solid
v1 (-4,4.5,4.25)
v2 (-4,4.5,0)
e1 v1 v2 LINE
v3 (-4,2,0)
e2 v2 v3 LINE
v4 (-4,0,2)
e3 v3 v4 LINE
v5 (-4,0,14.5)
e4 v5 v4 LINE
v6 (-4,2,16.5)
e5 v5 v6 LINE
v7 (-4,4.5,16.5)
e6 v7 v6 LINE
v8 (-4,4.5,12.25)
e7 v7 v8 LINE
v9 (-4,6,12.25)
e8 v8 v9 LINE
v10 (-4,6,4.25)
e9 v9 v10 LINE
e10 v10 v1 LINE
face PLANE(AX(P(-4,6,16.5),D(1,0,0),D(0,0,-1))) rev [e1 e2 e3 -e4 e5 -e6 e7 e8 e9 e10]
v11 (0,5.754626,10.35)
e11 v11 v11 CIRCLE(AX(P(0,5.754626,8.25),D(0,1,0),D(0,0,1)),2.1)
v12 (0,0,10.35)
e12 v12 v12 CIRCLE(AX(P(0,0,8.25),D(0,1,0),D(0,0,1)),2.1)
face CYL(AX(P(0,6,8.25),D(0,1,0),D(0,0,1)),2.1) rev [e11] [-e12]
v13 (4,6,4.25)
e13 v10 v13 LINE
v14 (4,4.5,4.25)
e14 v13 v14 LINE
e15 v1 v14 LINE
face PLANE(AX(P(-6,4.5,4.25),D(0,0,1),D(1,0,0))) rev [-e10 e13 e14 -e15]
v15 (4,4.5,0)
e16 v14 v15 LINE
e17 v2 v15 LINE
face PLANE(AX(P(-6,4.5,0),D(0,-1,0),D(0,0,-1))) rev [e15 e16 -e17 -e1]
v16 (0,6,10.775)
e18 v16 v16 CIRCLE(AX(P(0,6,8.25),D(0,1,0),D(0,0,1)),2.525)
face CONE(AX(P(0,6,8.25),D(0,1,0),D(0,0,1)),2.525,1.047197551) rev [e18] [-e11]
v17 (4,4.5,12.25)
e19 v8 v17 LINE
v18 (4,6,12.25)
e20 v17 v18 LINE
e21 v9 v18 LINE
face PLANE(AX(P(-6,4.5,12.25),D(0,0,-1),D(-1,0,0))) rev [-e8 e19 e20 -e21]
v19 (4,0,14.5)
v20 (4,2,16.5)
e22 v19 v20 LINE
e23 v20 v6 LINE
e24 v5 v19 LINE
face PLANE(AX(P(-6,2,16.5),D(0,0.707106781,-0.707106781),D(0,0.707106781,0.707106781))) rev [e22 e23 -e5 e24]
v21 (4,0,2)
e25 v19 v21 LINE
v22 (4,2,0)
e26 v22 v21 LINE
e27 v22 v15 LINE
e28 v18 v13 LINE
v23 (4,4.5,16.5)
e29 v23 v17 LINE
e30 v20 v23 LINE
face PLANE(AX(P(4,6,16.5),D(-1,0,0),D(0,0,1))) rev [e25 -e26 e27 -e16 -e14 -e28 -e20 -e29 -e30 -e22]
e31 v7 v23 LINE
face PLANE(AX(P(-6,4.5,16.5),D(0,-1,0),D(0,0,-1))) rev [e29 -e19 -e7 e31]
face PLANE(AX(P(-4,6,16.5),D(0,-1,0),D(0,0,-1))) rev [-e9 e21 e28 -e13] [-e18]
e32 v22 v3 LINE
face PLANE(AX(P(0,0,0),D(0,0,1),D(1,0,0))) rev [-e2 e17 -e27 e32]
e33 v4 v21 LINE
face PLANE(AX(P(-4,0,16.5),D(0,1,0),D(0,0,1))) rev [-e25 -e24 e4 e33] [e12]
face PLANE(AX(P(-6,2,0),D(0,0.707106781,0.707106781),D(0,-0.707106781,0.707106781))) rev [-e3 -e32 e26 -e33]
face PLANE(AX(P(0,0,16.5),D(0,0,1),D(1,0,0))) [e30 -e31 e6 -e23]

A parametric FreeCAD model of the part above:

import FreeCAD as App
import Part
import Sketcher

V = App.Vector


def add_polygon(sketch, points):
    """Adds a closed chain of lines whose ends are joined by coincident constraints."""
    first, n = sketch.GeometryCount, len(points)
    for a, b in zip(points, points[1:] + points[:1]):
        sketch.addGeometry(Part.LineSegment(App.Vector(*a, 0), App.Vector(*b, 0)), False)
    for i in range(n):
        sketch.addConstraint(Sketcher.Constraint("Coincident", first + i, 2, first + (i + 1) % n, 1))

doc = App.newDocument("Part")
body = doc.addObject("PartDesign::Body", "Body")

# Sketch on XY plane
sketch1 = body.newObject("Sketcher::SketchObject", "Sketch")
sketch1.AttachmentSupport = (doc.getObject("XY_Plane"), [""])
sketch1.MapMode = "FlatFace"
add_polygon(sketch1, [(-4, 6), (-4, 0), (4, 0), (4, 6)])  # lines 0-3
sketch1.addConstraint([
    Sketcher.Constraint("Vertical", 0),
    Sketcher.Constraint("Horizontal", 1),
    Sketcher.Constraint("Vertical", 2),
    Sketcher.Constraint("Horizontal", 3),
    Sketcher.Constraint("Symmetric", 0, 2, 1, 2, -1, 1),
    Sketcher.Constraint("DistanceX", 1, 1, 1, 2, 8.0),
    Sketcher.Constraint("DistanceY", 0, 2, 0, 1, 6.0),
])
pad1 = body.newObject("PartDesign::Pad", "Pad")
pad1.Profile = sketch1
pad1.Length = 16.5

# Sketch on XZ plane
sketch2 = body.newObject("Sketcher::SketchObject", "Sketch001")
sketch2.AttachmentSupport = (doc.getObject("XZ_Plane"), [""])
sketch2.MapMode = "FlatFace"
sketch2.AttachmentOffset = App.Placement(V(0, 0, -6), App.Rotation())
sketch2.addGeometry(Part.Circle(V(0, 8.25, 0), V(0, 0, 1), 2.1), False)
sketch2.addConstraint([
    Sketcher.Constraint("PointOnObject", 0, 3, -2),
    Sketcher.Constraint("Diameter", 0, 4.2),
    Sketcher.Constraint("DistanceY", -1, 1, 0, 3, 8.25),
])
doc.recompute()
hole = body.newObject("PartDesign::Hole", "Hole")
hole.Profile = sketch2
hole.ThreadType = "None"
hole.Diameter = 4.2
hole.DepthType = "ThroughAll"
hole.HoleCutType = "Countersink"
hole.HoleCutDiameter = 5.05
hole.HoleCutCountersinkAngle = 120
hole.Reversed = True

# Sketch on YZ plane
sketch3 = body.newObject("Sketcher::SketchObject", "Sketch002")
sketch3.AttachmentSupport = (doc.getObject("YZ_Plane"), [""])
sketch3.MapMode = "FlatFace"
sketch3.AttachmentOffset = App.Placement(V(0, 0, 4), App.Rotation())
add_polygon(sketch3, [(2, 16.5), (0, 16.5), (0, 14.5)])  # lines 0-2
add_polygon(sketch3, [(0, 0), (2, 0), (0, 2)])  # lines 3-5
add_polygon(sketch3, [(6, 4.25), (4.5, 4.25), (4.5, 0), (6, 0)])  # lines 6-9
add_polygon(sketch3, [(6, 16.5), (4.5, 16.5), (4.5, 12.25), (6, 12.25)])  # lines 10-13
sketch3.addConstraint([
    Sketcher.Constraint("Horizontal", 0),
    Sketcher.Constraint("Vertical", 1),
    Sketcher.Constraint("Horizontal", 3),
    Sketcher.Constraint("Vertical", 5),
    Sketcher.Constraint("Horizontal", 6),
    Sketcher.Constraint("Vertical", 7),
    Sketcher.Constraint("Horizontal", 8),
    Sketcher.Constraint("Vertical", 9),
    Sketcher.Constraint("Horizontal", 10),
    Sketcher.Constraint("Vertical", 11),
    Sketcher.Constraint("Horizontal", 12),
    Sketcher.Constraint("Vertical", 13),
    Sketcher.Constraint("Coincident", 5, 2, -1, 1),
    Sketcher.Constraint("PointOnObject", 0, 2, -2),
    Sketcher.Constraint("PointOnObject", 7, 2, -1),
    Sketcher.Constraint("Perpendicular", 2, 4),
    Sketcher.Constraint("Horizontal", 2, 2, 10, 2),
    Sketcher.Constraint("Vertical", 2, 2, 3, 2),
    Sketcher.Constraint("Vertical", 7, 2, 10, 2),
    Sketcher.Constraint("Vertical", 9, 2, 12, 2),
    Sketcher.Constraint("Equal", 3, 1),
    Sketcher.Constraint("Equal", 9, 11),
    Sketcher.Constraint("DistanceX", 0, 2, 0, 1, 2.0),
    Sketcher.Constraint("DistanceX", 6, 2, 6, 1, 1.5),
    Sketcher.Constraint("DistanceX", -1, 1, 8, 2, 6.0),
    Sketcher.Constraint("DistanceY", 6, 2, 11, 2, 8.0),
    Sketcher.Constraint("DistanceY", 7, 2, 7, 1, 4.25),
])
pocket1 = body.newObject("PartDesign::Pocket", "Pocket")
pocket1.Profile = sketch3
pocket1.Length = 10

doc.recompute()
